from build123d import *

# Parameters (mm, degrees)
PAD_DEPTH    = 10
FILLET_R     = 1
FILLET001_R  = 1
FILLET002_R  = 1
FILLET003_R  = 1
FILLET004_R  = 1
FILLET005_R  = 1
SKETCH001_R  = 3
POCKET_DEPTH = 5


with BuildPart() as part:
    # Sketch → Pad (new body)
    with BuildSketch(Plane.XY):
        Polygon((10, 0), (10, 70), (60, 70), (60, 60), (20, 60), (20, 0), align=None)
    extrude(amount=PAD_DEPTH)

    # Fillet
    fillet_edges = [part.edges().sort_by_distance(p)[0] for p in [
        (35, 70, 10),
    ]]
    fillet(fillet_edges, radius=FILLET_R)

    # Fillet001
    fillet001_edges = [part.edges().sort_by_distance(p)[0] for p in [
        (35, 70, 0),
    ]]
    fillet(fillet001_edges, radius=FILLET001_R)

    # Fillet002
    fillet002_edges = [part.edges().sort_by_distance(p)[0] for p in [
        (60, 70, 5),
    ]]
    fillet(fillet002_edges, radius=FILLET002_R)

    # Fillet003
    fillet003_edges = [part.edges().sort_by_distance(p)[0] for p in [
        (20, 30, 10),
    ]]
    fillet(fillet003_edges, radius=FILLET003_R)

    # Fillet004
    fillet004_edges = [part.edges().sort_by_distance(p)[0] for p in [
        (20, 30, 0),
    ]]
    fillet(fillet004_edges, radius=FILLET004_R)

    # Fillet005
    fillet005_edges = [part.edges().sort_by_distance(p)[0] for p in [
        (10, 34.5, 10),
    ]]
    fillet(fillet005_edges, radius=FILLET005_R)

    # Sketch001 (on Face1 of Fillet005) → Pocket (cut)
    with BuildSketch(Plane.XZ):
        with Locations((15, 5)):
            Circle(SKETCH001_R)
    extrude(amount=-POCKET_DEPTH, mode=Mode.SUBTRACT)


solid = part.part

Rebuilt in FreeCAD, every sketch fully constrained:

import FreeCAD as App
import Part
import Sketcher
from FreeCAD import Vector
Q = App.Units.Quantity


def edges_at(feature, points):
    """Names of the edges that pass closest to the given points."""
    edges = feature.Shape.Edges
    near = lambda p: min(range(len(edges)), key=lambda i: edges[i].distToShape(Part.Vertex(*p))[0])
    return sorted({f"Edge{near(p) + 1}" for p in points})

doc = App.newDocument("Part")
body = doc.addObject("PartDesign::Body", "Body")

# Sketch on XY plane
sketch1 = doc.addObject("Sketcher::SketchObject", "Sketch")
body.addObject(sketch1)
sketch1.AttachmentSupport = (doc.XY_Plane, [""])
sketch1.MapMode = "FlatFace"
sketch1.addGeometry(Part.LineSegment(Vector(10, 70, 0), Vector(10, 0, 0)), False)
sketch1.addGeometry(Part.LineSegment(Vector(10, 0, 0), Vector(20, 0, 0)), False)
sketch1.addGeometry(Part.LineSegment(Vector(20, 0, 0), Vector(20, 60, 0)), False)
sketch1.addGeometry(Part.LineSegment(Vector(20, 60, 0), Vector(60, 60, 0)), False)
sketch1.addGeometry(Part.LineSegment(Vector(60, 60, 0), Vector(60, 70, 0)), False)
sketch1.addGeometry(Part.LineSegment(Vector(60, 70, 0), Vector(10, 70, 0)), False)
sketch1.addConstraint(Sketcher.Constraint("Coincident", 0, 2, 1, 1))
sketch1.addConstraint(Sketcher.Constraint("Coincident", 1, 2, 2, 1))
sketch1.addConstraint(Sketcher.Constraint("Coincident", 2, 2, 3, 1))
sketch1.addConstraint(Sketcher.Constraint("Coincident", 3, 2, 4, 1))
sketch1.addConstraint(Sketcher.Constraint("Coincident", 4, 2, 5, 1))
sketch1.addConstraint(Sketcher.Constraint("Coincident", 5, 2, 0, 1))
sketch1.addConstraint(Sketcher.Constraint("Vertical", 0))
sketch1.addConstraint(Sketcher.Constraint("Horizontal", 1))
sketch1.addConstraint(Sketcher.Constraint("Vertical", 2))
sketch1.addConstraint(Sketcher.Constraint("Horizontal", 3))
sketch1.addConstraint(Sketcher.Constraint("Vertical", 4))
sketch1.addConstraint(Sketcher.Constraint("Horizontal", 5))
sketch1.addConstraint(Sketcher.Constraint("PointOnObject", 0, 2, -1))
sketch1.addConstraint(Sketcher.Constraint("Equal", 1, 4))
sketch1.addConstraint(Sketcher.Constraint("DistanceX", 1, 1, 1, 2, Q("10 mm")))
sketch1.addConstraint(Sketcher.Constraint("DistanceX", 3, 1, 3, 2, Q("40 mm")))
sketch1.addConstraint(Sketcher.Constraint("DistanceY", 0, 2, 0, 1, Q("70 mm")))
sketch1.addConstraint(Sketcher.Constraint("DistanceX", -1, 1, 0, 2, Q("10 mm")))
pad1 = doc.addObject("PartDesign::Pad", "Pad")
body.addObject(pad1)
pad1.Profile = sketch1
pad1.Length = 10
doc.recompute()

fillet = doc.addObject("PartDesign::Fillet", "Fillet")
body.addObject(fillet)
fillet.Base = (pad1, edges_at(pad1, [(35, 70, 10)]))
fillet.Radius = 1
doc.recompute()

fillet2 = doc.addObject("PartDesign::Fillet", "Fillet001")
body.addObject(fillet2)
fillet2.Base = (fillet, edges_at(fillet, [(35, 70, 0)]))
fillet2.Radius = 1
doc.recompute()

fillet3 = doc.addObject("PartDesign::Fillet", "Fillet002")
body.addObject(fillet3)
fillet3.Base = (fillet2, edges_at(fillet2, [(60, 70, 5)]))
fillet3.Radius = 1
doc.recompute()

fillet4 = doc.addObject("PartDesign::Fillet", "Fillet003")
body.addObject(fillet4)
fillet4.Base = (fillet3, edges_at(fillet3, [(20, 30, 10)]))
fillet4.Radius = 1
doc.recompute()

fillet5 = doc.addObject("PartDesign::Fillet", "Fillet004")
body.addObject(fillet5)
fillet5.Base = (fillet4, edges_at(fillet4, [(20, 30, 0)]))
fillet5.Radius = 1
doc.recompute()

fillet6 = doc.addObject("PartDesign::Fillet", "Fillet005")
body.addObject(fillet6)
fillet6.Base = (fillet5, edges_at(fillet5, [(10, 34.5, 10)]))
fillet6.Radius = 1

# Sketch on XZ plane
sketch2 = doc.addObject("Sketcher::SketchObject", "Sketch001")
body.addObject(sketch2)
sketch2.AttachmentSupport = (doc.XZ_Plane, [""])
sketch2.MapMode = "FlatFace"
sketch2.addGeometry(Part.Circle(Vector(15, 5, 0), Vector(0, 0, 1), 3), False)
sketch2.addConstraint(Sketcher.Constraint("Diameter", 0, Q("6 mm")))
sketch2.addConstraint(Sketcher.Constraint("DistanceX", -1, 1, 0, 3, Q("15 mm")))
sketch2.addConstraint(Sketcher.Constraint("DistanceY", -1, 1, 0, 3, Q("5 mm")))
pocket1 = doc.addObject("PartDesign::Pocket", "Pocket")
body.addObject(pocket1)
pocket1.Profile = sketch2
pocket1.Length = 5

doc.recompute()
